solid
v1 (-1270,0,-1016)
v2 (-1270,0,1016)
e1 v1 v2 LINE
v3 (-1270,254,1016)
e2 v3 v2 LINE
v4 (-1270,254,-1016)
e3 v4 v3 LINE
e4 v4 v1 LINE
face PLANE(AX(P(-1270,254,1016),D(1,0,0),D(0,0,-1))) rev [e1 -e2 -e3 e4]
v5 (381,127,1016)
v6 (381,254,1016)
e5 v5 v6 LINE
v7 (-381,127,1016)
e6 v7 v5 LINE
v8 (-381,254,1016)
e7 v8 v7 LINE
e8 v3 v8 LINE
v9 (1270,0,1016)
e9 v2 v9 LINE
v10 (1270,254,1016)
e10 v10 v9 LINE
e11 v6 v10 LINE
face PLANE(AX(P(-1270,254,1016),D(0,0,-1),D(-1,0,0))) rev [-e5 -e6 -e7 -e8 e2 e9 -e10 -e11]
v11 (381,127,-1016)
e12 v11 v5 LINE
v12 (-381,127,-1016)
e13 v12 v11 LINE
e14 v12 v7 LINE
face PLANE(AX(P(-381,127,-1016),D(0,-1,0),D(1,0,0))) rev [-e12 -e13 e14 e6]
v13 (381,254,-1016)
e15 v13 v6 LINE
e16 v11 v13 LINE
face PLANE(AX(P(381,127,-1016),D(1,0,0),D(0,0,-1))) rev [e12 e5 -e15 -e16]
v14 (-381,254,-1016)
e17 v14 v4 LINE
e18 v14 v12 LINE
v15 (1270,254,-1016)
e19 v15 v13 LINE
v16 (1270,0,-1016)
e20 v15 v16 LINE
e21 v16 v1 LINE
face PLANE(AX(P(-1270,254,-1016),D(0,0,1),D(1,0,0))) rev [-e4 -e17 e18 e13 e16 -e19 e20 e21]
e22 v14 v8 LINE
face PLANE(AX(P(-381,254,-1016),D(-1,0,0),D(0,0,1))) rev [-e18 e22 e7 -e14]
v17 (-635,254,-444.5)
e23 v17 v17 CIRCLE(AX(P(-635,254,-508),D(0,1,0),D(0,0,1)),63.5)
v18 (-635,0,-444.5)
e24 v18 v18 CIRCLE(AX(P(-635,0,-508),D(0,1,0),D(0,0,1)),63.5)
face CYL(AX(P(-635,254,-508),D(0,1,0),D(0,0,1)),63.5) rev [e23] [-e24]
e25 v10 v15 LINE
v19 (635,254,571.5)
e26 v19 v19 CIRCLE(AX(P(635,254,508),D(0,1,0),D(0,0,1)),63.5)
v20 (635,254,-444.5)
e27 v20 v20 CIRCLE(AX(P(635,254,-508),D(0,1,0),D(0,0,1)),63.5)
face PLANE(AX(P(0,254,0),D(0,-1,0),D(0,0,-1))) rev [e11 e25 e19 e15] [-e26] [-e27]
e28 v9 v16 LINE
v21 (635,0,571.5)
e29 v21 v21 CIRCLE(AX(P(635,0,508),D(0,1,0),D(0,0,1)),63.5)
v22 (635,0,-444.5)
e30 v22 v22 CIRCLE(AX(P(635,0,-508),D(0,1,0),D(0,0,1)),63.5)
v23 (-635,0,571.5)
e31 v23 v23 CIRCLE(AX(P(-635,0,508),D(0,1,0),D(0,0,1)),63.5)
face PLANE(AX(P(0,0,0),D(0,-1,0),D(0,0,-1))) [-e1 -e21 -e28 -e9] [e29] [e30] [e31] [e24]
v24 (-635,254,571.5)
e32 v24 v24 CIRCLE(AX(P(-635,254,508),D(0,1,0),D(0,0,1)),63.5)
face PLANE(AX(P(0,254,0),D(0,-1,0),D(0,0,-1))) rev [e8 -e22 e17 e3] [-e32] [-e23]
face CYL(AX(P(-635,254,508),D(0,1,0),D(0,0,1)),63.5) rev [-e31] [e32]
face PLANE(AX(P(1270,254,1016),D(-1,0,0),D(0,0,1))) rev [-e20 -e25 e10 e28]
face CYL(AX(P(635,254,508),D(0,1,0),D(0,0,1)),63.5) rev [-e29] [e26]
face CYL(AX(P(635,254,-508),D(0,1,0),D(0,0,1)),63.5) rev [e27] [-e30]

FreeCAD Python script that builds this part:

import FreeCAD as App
import Part
import Sketcher

V = App.Vector
Q = App.Units.Quantity

doc = App.newDocument("Part")
params = doc.addObject("Spreadsheet::Sheet", "Params")
for row, (alias, value) in enumerate([
    ("sketch1_width", "100 in"),
    ("sketch1_height", "80 in"),
    ("pad1_length", "10 in"),
    ("sketch2_width", "30 in"),
    ("sketch2_height", "5 in"),
    ("sketch3_diameter", "5 in"),
    ("hole_diameter", "5 in"),
], start=1):
    params.set(f"A{row}", alias)
    params.set(f"B{row}", "=" + value)
    params.setAlias(f"B{row}", alias)

body = doc.addObject("PartDesign::Body", "Body")

# Sketch on XZ plane
sketch1 = body.newObject("Sketcher::SketchObject", "Sketch")
sketch1.AttachmentSupport = (doc.getObject("XZ_Plane"), [""])
sketch1.MapMode = "FlatFace"
sketch1.addGeometry([
    Part.LineSegment(V(-1270, -1016, 0), V(-1270, 1016, 0)),
    Part.LineSegment(V(-1270, 1016, 0), V(1270, 1016, 0)),
    Part.LineSegment(V(1270, 1016, 0), V(1270, -1016, 0)),
    Part.LineSegment(V(1270, -1016, 0), V(-1270, -1016, 0)),
], False)
sketch1.addConstraint([
    Sketcher.Constraint("Coincident", 0, 2, 1, 1),
    Sketcher.Constraint("Coincident", 1, 2, 2, 1),
    Sketcher.Constraint("Coincident", 2, 2, 3, 1),
    Sketcher.Constraint("Coincident", 3, 2, 0, 1),
    Sketcher.Constraint("Vertical", 0),
    Sketcher.Constraint("Horizontal", 1),
    Sketcher.Constraint("Vertical", 2),
    Sketcher.Constraint("Horizontal", 3),
    Sketcher.Constraint("Symmetric", 0, 2, 2, 2, -1, 1),
    Sketcher.Constraint("DistanceX", 1, 1, 1, 2, Q("100 in")),
    Sketcher.Constraint("DistanceY", 0, 1, 0, 2, Q("80 in")),
])
sketch1.setExpression("Constraints[9]", "Params.sketch1_width")
sketch1.setExpression("Constraints[10]", "Params.sketch1_height")
pad1 = body.newObject("PartDesign::Pad", "Pad")
pad1.Profile = sketch1
pad1.setExpression("Length", "Params.pad1_length")
pad1.Reversed = True

# Sketch on XY plane
sketch2 = body.newObject("Sketcher::SketchObject", "Sketch001")
sketch2.AttachmentSupport = (doc.getObject("XY_Plane"), [""])
sketch2.MapMode = "FlatFace"
sketch2.addGeometry([
    Part.LineSegment(V(-381, 254, 0), V(-381, 127, 0)),
    Part.LineSegment(V(-381, 127, 0), V(381, 127, 0)),
    Part.LineSegment(V(381, 127, 0), V(381, 254, 0)),
    Part.LineSegment(V(381, 254, 0), V(-381, 254, 0)),
], False)
sketch2.addConstraint([
    Sketcher.Constraint("Coincident", 0, 2, 1, 1),
    Sketcher.Constraint("Coincident", 1, 2, 2, 1),
    Sketcher.Constraint("Coincident", 2, 2, 3, 1),
    Sketcher.Constraint("Coincident", 3, 2, 0, 1),
    Sketcher.Constraint("Vertical", 0),
    Sketcher.Constraint("Horizontal", 1),
    Sketcher.Constraint("Vertical", 2),
    Sketcher.Constraint("Horizontal", 3),
    Sketcher.Constraint("DistanceX", 1, 1, 1, 2, Q("30 in")),
    Sketcher.Constraint("DistanceY", 0, 2, 0, 1, Q("5 in")),
    Sketcher.Constraint("DistanceX", 0, 2, -1, 1, Q("15 in")),
    Sketcher.Constraint("DistanceY", -1, 1, 0, 2, Q("5 in")),
])
sketch2.setExpression("Constraints[8]", "Params.sketch2_width")
sketch2.setExpression("Constraints[9]", "Params.sketch2_height")
pocket1 = body.newObject("PartDesign::Pocket", "Pocket")
pocket1.Profile = sketch2
pocket1.Type = "ThroughAll"
pocket1.Midplane = True

# Sketch on XZ plane
sketch3 = body.newObject("Sketcher::SketchObject", "Sketch002")
sketch3.AttachmentSupport = (doc.getObject("XZ_Plane"), [""])
sketch3.MapMode = "FlatFace"
sketch3.AttachmentOffset = App.Placement(V(0, 0, -10 * 25.4), App.Rotation())
sketch3.addGeometry([
    Part.Circle(V(-635, -508, 0), V(0, 0, 1), 64),
    Part.Circle(V(-635, 508, 0), V(0, 0, 1), 64),
], False)
sketch3.addConstraint([
    Sketcher.Constraint("Equal", 0, 1),
    Sketcher.Constraint("Symmetric", 0, 3, 1, 3, -1),
    Sketcher.Constraint("Diameter", 0, Q("5 in")),
    Sketcher.Constraint("DistanceX", 0, 3, -1, 1, Q("25 in")),
    Sketcher.Constraint("DistanceY", 0, 3, -1, 1, Q("20 in")),
])
sketch3.setExpression("Constraints[2]", "Params.sketch3_diameter")
doc.recompute()
hole = body.newObject("PartDesign::Hole", "Hole")
hole.Profile = sketch3
hole.ThreadType = "None"
hole.setExpression("Diameter", "Params.hole_diameter")
hole.DepthType = "ThroughAll"
hole.Reversed = True
doc.recompute()

mirrored = body.newObject("PartDesign::Mirrored", "Mirrored")
mirrored.Originals = [hole]
mirrored.MirrorPlane = (doc.getObject("YZ_Plane"), [""])
body.Tip = mirrored

doc.recompute()
